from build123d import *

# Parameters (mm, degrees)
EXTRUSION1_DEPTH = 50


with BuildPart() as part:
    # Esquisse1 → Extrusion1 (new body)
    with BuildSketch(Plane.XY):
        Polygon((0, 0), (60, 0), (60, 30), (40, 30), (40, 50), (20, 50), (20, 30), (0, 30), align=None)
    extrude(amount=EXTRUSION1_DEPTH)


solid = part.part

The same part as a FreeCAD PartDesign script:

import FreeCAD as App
import Part
import Sketcher
Q = App.Units.Quantity


def add_polygon(sketch, points):
    """Adds a closed chain of lines whose ends are joined by coincident constraints."""
    first, n = sketch.GeometryCount, len(points)
    for a, b in zip(points, points[1:] + points[:1]):
        sketch.addGeometry(Part.LineSegment(App.Vector(*a, 0), App.Vector(*b, 0)), False)
    for i in range(n):
        sketch.addConstraint(Sketcher.Constraint("Coincident", first + i, 2, first + (i + 1) % n, 1))

doc = App.newDocument("Part")
body = doc.addObject("PartDesign::Body", "Body")

# Sketch on XY plane
sketch1 = body.newObject("Sketcher::SketchObject", "Sketch")
sketch1.AttachmentSupport = (doc.getObject("XY_Plane"), [""])
sketch1.MapMode = "FlatFace"
add_polygon(sketch1, [(0, 0), (60, 0), (60, 30), (40, 30), (40, 50), (20, 50), (20, 30), (0, 30)])  # lines 0-7
sketch1.addConstraint([
    Sketcher.Constraint("Horizontal", 0),
    Sketcher.Constraint("Vertical", 1),
    Sketcher.Constraint("Horizontal", 2),
    Sketcher.Constraint("Vertical", 3),
    Sketcher.Constraint("Horizontal", 4),
    Sketcher.Constraint("Vertical", 5),
    Sketcher.Constraint("Horizontal", 6),
    Sketcher.Constraint("Vertical", 7),
    Sketcher.Constraint("Coincident", 7, 2, -1, 1),
    Sketcher.Constraint("Horizontal", 2, 2, 5, 2),
    Sketcher.Constraint("Equal", 2, 4),
    Sketcher.Constraint("Equal", 4, 6),
    Sketcher.Constraint("Equal", 6, 3),
    Sketcher.Constraint("DistanceX", 0, 1, 0, 2, Q("60 mm")),
    Sketcher.Constraint("DistanceY", 1, 1, 1, 2, Q("30 mm")),
])
pad1 = body.newObject("PartDesign::Pad", "Pad")
pad1.Profile = sketch1
pad1.Length = 50

doc.recompute()
